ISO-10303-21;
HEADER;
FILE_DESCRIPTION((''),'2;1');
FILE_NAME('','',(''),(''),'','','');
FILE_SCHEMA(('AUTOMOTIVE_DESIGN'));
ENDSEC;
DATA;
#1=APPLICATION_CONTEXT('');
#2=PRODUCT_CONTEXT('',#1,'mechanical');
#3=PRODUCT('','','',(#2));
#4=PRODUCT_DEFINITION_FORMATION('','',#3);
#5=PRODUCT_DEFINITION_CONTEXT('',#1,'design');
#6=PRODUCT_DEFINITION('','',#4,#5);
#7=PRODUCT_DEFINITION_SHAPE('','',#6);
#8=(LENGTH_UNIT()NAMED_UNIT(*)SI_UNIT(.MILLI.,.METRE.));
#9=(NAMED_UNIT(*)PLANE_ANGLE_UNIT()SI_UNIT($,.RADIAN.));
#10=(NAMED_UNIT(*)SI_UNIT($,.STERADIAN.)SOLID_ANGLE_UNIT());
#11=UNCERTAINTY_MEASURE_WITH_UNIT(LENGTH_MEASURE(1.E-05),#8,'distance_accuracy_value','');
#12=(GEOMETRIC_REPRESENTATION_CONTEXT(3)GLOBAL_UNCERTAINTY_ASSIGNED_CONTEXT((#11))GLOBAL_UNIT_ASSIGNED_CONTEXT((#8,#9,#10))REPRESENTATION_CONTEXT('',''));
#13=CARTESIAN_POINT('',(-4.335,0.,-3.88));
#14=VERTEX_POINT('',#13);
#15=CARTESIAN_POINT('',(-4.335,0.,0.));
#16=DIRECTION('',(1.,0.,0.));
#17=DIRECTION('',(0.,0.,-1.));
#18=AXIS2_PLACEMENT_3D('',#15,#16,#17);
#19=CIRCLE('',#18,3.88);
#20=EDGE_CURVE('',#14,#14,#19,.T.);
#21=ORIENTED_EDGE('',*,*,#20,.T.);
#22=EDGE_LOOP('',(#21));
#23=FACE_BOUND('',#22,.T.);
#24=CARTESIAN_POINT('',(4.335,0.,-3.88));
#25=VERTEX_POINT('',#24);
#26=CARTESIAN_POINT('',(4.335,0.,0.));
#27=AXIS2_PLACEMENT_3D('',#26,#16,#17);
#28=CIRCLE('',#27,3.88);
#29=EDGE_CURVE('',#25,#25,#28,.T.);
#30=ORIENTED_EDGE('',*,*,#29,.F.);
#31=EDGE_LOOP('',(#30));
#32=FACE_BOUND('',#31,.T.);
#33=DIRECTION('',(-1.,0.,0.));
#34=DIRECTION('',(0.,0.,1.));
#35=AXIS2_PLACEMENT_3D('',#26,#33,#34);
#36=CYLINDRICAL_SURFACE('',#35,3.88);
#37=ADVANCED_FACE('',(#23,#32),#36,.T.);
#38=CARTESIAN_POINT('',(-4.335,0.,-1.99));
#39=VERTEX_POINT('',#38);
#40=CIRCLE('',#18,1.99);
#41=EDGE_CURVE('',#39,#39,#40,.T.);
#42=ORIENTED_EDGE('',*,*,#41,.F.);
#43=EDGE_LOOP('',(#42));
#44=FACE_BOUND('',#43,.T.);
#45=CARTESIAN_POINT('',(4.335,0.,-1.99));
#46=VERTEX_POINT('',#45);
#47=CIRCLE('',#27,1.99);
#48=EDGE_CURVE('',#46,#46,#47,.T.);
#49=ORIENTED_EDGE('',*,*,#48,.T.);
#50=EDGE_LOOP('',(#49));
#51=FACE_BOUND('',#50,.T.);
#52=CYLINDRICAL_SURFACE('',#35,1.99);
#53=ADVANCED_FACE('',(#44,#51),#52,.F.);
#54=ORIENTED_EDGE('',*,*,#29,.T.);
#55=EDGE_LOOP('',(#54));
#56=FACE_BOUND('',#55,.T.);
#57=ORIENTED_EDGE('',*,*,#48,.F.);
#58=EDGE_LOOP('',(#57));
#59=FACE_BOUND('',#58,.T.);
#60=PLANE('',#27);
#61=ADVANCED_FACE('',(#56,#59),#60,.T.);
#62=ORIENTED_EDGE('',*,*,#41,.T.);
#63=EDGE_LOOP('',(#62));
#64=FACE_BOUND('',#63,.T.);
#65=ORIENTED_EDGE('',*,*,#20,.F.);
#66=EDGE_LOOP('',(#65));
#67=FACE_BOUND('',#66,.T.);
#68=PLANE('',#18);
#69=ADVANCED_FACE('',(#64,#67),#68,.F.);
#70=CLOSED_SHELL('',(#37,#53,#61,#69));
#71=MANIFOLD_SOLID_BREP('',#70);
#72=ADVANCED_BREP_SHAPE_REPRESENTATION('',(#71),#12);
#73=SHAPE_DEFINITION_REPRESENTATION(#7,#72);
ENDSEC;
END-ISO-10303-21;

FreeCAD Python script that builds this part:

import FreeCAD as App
import Part
import Sketcher

V = App.Vector
Q = App.Units.Quantity

doc = App.newDocument("Part")
body = doc.addObject("PartDesign::Body", "Body")

sketch1 = body.newObject("Sketcher::SketchObject", "Sketch")
sketch1.AttachmentSupport = (doc.getObject("YZ_Plane"), [""])
sketch1.MapMode = "FlatFace"
sketch1.addGeometry([
    Part.Circle(V(0, 0, 0), V(0, 0, 1), 3.9),
    Part.Circle(V(0, 0, 0), V(0, 0, 1), 2),
], False)
sketch1.addConstraint([
    Sketcher.Constraint("Coincident", 0, 3, -1, 1),
    Sketcher.Constraint("Coincident", 1, 3, -1, 1),
    Sketcher.Constraint("Diameter", 0, Q("7.76 mm")),
    Sketcher.Constraint("Diameter", 1, Q("3.98 mm")),
])
pad1 = body.newObject("PartDesign::Pad", "Pad")
pad1.Profile = sketch1
pad1.Length = 8.67
pad1.Midplane = True

doc.recompute()
